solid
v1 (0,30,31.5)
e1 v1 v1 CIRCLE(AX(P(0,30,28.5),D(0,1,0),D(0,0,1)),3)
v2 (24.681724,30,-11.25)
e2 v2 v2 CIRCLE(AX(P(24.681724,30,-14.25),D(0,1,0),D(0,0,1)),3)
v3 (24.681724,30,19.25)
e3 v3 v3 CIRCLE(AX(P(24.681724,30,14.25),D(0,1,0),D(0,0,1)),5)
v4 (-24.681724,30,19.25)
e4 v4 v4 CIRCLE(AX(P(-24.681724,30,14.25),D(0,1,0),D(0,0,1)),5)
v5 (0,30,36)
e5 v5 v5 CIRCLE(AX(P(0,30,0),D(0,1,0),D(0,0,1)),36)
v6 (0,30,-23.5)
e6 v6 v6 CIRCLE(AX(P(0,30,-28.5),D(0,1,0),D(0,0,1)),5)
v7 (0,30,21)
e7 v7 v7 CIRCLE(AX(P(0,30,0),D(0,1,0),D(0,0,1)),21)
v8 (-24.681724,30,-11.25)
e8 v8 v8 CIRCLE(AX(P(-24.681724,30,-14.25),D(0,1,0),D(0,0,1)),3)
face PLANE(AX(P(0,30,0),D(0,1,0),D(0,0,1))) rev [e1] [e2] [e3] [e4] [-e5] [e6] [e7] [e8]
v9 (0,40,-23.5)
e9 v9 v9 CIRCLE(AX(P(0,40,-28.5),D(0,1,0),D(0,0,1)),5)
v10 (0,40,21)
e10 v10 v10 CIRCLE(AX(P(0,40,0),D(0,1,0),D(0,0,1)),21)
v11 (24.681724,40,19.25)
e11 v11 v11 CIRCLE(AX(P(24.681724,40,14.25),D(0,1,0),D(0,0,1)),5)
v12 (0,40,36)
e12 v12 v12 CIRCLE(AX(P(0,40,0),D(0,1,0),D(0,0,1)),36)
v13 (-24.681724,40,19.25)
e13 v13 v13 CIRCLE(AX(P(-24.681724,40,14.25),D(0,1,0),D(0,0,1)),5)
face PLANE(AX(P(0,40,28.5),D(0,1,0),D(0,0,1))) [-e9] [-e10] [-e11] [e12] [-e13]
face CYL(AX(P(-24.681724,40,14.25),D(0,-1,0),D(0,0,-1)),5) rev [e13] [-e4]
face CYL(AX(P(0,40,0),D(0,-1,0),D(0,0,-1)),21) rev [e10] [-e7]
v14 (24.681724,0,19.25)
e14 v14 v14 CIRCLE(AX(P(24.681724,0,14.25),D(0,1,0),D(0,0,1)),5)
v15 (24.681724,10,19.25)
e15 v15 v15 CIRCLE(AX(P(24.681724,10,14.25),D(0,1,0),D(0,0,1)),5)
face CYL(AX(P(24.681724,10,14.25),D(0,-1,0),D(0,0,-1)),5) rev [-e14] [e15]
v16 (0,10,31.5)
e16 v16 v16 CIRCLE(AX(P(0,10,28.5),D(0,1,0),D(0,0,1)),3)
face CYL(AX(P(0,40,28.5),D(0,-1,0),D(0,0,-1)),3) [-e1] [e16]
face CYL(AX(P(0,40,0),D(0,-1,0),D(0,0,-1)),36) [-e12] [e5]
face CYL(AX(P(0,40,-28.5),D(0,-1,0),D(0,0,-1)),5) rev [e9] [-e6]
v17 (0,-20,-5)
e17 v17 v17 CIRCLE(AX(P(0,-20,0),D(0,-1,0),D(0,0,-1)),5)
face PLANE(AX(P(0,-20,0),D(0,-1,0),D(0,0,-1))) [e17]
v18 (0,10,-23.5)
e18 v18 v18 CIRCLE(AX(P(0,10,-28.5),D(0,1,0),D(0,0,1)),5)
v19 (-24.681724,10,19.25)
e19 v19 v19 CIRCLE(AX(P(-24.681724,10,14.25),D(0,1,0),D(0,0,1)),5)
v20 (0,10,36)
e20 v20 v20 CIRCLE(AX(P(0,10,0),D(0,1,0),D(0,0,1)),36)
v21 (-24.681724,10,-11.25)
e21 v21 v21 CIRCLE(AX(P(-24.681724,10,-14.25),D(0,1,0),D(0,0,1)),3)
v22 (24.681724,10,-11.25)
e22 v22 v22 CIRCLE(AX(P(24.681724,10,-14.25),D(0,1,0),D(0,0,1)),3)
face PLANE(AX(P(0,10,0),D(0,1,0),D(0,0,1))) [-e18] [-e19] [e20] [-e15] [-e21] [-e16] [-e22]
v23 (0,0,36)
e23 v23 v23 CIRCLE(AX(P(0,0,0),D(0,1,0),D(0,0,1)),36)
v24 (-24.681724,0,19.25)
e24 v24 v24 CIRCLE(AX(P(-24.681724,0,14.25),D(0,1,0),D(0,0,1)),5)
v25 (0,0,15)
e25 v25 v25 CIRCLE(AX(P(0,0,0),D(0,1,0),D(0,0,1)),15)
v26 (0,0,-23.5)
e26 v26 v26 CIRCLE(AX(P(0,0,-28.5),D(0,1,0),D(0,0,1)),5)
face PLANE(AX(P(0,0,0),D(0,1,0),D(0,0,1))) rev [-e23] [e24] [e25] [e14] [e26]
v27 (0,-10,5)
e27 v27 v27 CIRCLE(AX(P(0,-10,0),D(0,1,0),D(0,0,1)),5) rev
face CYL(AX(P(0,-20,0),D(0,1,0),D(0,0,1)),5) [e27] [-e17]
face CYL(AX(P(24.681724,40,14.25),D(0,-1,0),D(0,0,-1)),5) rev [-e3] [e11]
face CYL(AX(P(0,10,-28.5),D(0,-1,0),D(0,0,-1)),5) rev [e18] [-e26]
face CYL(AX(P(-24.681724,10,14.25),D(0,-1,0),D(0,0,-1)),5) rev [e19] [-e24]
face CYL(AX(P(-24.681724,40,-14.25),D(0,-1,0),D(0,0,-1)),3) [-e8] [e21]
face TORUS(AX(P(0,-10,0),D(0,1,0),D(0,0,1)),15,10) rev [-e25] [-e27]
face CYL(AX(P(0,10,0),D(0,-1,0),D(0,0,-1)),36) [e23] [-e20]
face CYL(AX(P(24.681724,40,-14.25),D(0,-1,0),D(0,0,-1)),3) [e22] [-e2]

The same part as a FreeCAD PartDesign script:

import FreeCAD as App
import Part
import Sketcher
from FreeCAD import Vector
Q = App.Units.Quantity


def edges_at(feature, points):
    """Names of the edges that pass closest to the given points."""
    edges = feature.Shape.Edges
    near = lambda p: min(range(len(edges)), key=lambda i: edges[i].distToShape(Part.Vertex(*p))[0])
    return sorted({f"Edge{near(p) + 1}" for p in points})

doc = App.newDocument("Part")
params = doc.addObject("Spreadsheet::Sheet", "Params")
for row, (alias, value) in enumerate([
    ("sketch1_diameter", "72 mm"),
    ("sketch1_diameter2", "6 mm"),
    ("sketch1_diameter3", "10 mm"),
    ("sketch1_diameter4", "42 mm"),
    ("pad1_length", "10 mm"),
    ("sketch2_diameter", "6 mm"),
    ("pad2_length", "40 mm"),
    ("linearpattern_pitch", "30 mm"),
    ("sketch3_diameter", "42 mm"),
    ("pad3_length", "10 mm"),
    ("sketch4_diameter", "10 mm"),
    ("pad4_length", "20 mm"),
    ("fillet_radius", "10 mm"),
], start=1):
    params.set(f"A{row}", alias)
    params.set(f"B{row}", "=" + value)
    params.setAlias(f"B{row}", alias)

body = doc.addObject("PartDesign::Body", "Body")

sketch1 = doc.addObject("Sketcher::SketchObject", "Sketch")
body.addObject(sketch1)
sketch1.AttachmentSupport = (doc.XZ_Plane, [""])
sketch1.MapMode = "FlatFace"
sketch1.addGeometry([
    Part.Circle(Vector(0, 0, 0), Vector(0, 0, 1), 36),
    Part.Circle(Vector(-24.7, -14.2, 0), Vector(0, 0, 1), 3),
    Part.Circle(Vector(0, -28.5, 0), Vector(0, 0, 1), 5),
    Part.Circle(Vector(-24.7, 14.2, 0), Vector(0, 0, 1), 5),
    Part.Circle(Vector(0, 0, 0), Vector(0, 0, 1), 21),
    Part.Circle(Vector(24.7, -14.2, 0), Vector(0, 0, 1), 3),
    Part.Circle(Vector(0, 28.5, 0), Vector(0, 0, 1), 3),
    Part.Circle(Vector(24.7, 14.2, 0), Vector(0, 0, 1), 5),
], False)
sketch1.addConstraint([
    Sketcher.Constraint("Coincident", 0, 3, -1, 1),
    Sketcher.Constraint("Coincident", 4, 3, -1, 1),
    Sketcher.Constraint("Equal", 2, 3),
    Sketcher.Constraint("Equal", 1, 5),
    Sketcher.Constraint("Equal", 5, 6),
    Sketcher.Constraint("Equal", 3, 7),
    Sketcher.Constraint("Symmetric", 3, 3, 5, 3, -1, 1),
    Sketcher.Constraint("Symmetric", 2, 3, 6, 3, -1, 1),
    Sketcher.Constraint("Symmetric", 1, 3, 7, 3, -1, 1),
    Sketcher.Constraint("Symmetric", 1, 3, 5, 3, -2),
    Sketcher.Constraint("PointOnObject", 2, 3, -2),
    Sketcher.Constraint("Diameter", 0, Q("72 mm")),
    Sketcher.Constraint("Diameter", 1, Q("6 mm")),
    Sketcher.Constraint("Diameter", 2, Q("10 mm")),
    Sketcher.Constraint("Diameter", 4, Q("42 mm")),
    Sketcher.Constraint("DistanceY", 2, 3, -1, 1, Q("28.5 mm")),
    Sketcher.Constraint("DistanceY", 1, 3, 3, 3, Q("28.5 mm")),
    Sketcher.Constraint("DistanceX", 1, 3, 5, 3, Q("49.363448 mm")),
])
sketch1.setExpression("Constraints[11]", "Params.sketch1_diameter")
sketch1.setExpression("Constraints[12]", "Params.sketch1_diameter2")
sketch1.setExpression("Constraints[13]", "Params.sketch1_diameter3")
sketch1.setExpression("Constraints[14]", "Params.sketch1_diameter4")
pad1 = doc.addObject("PartDesign::Pad", "Pad")
body.addObject(pad1)
pad1.Profile = sketch1
pad1.setExpression("Length", "Params.pad1_length")
pad1.Reversed = True

sketch2 = doc.addObject("Sketcher::SketchObject", "Sketch001")
body.addObject(sketch2)
sketch2.AttachmentSupport = (doc.XZ_Plane, [""])
sketch2.MapMode = "FlatFace"
sketch2.addGeometry([
    Part.Circle(Vector(0, 28.5, 0), Vector(0, 0, 1), 3),
    Part.Circle(Vector(-24.7, -14.2, 0), Vector(0, 0, 1), 3),
    Part.Circle(Vector(24.7, -14.2, 0), Vector(0, 0, 1), 3),
], False)
sketch2.addConstraint([
    Sketcher.Constraint("Equal", 0, 1),
    Sketcher.Constraint("Equal", 1, 2),
    Sketcher.Constraint("Symmetric", 1, 3, 2, 3, -2),
    Sketcher.Constraint("PointOnObject", 0, 3, -2),
    Sketcher.Constraint("Diameter", 0, Q("6 mm")),
    Sketcher.Constraint("DistanceY", -1, 1, 0, 3, Q("28.5 mm")),
    Sketcher.Constraint("DistanceY", 1, 3, -1, 1, Q("14.25 mm")),
    Sketcher.Constraint("DistanceX", 1, 3, 2, 3, Q("49.363448 mm")),
])
sketch2.setExpression("Constraints[4]", "Params.sketch2_diameter")
pad2 = doc.addObject("PartDesign::Pad", "Pad001")
body.addObject(pad2)
pad2.Profile = sketch2
pad2.setExpression("Length", "Params.pad2_length")
pad2.Reversed = True
doc.recompute()

linearpattern = doc.addObject("PartDesign::LinearPattern", "LinearPattern")
body.addObject(linearpattern)
linearpattern.Originals = [pad1]
linearpattern.Direction = (doc.Y_Axis, [""])
linearpattern.Mode = "offset"
linearpattern.setExpression("Offset", "Params.linearpattern_pitch")
linearpattern.Occurrences = 2
body.Tip = linearpattern

sketch3 = doc.addObject("Sketcher::SketchObject", "Sketch002")
body.addObject(sketch3)
sketch3.AttachmentSupport = (doc.XZ_Plane, [""])
sketch3.MapMode = "FlatFace"
sketch3.addGeometry(Part.Circle(Vector(0, 0, 0), Vector(0, 0, 1), 21), False)
sketch3.addConstraint([
    Sketcher.Constraint("Coincident", 0, 3, -1, 1),
    Sketcher.Constraint("Diameter", 0, Q("42 mm")),
])
sketch3.setExpression("Constraints[1]", "Params.sketch3_diameter")
pad3 = doc.addObject("PartDesign::Pad", "Pad002")
body.addObject(pad3)
pad3.Profile = sketch3
pad3.setExpression("Length", "Params.pad3_length")
pad3.Reversed = True

sketch4 = doc.addObject("Sketcher::SketchObject", "Sketch003")
body.addObject(sketch4)
sketch4.AttachmentSupport = (doc.XZ_Plane, [""])
sketch4.MapMode = "FlatFace"
sketch4.addGeometry(Part.Circle(Vector(0, 0, 0), Vector(0, 0, 1), 5), False)
sketch4.addConstraint([
    Sketcher.Constraint("Coincident", 0, 3, -1, 1),
    Sketcher.Constraint("Diameter", 0, Q("10 mm")),
])
sketch4.setExpression("Constraints[1]", "Params.sketch4_diameter")
pad4 = doc.addObject("PartDesign::Pad", "Pad003")
body.addObject(pad4)
pad4.Profile = sketch4
pad4.setExpression("Length", "Params.pad4_length")
doc.recompute()

fillet = doc.addObject("PartDesign::Fillet", "Fillet")
body.addObject(fillet)
fillet.Base = (pad4, edges_at(pad4, [(0, 0, -5)]))
fillet.setExpression("Radius", "Params.fillet_radius")

doc.recompute()
